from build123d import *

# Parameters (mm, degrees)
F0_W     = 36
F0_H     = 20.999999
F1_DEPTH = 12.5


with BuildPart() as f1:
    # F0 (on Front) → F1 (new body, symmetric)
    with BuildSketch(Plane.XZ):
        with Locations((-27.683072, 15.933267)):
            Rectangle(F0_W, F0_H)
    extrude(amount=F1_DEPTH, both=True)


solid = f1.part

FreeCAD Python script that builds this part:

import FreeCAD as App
import Part
import Sketcher


def add_polygon(sketch, points):
    """Adds a closed chain of lines whose ends are joined by coincident constraints."""
    first, n = sketch.GeometryCount, len(points)
    for a, b in zip(points, points[1:] + points[:1]):
        sketch.addGeometry(Part.LineSegment(App.Vector(*a, 0), App.Vector(*b, 0)), False)
    for i in range(n):
        sketch.addConstraint(Sketcher.Constraint("Coincident", first + i, 2, first + (i + 1) % n, 1))

doc = App.newDocument("Part")
body = doc.addObject("PartDesign::Body", "Body")

# Sketch on XZ plane
sketch1 = body.newObject("Sketcher::SketchObject", "Sketch")
sketch1.AttachmentSupport = (doc.getObject("XZ_Plane"), [""])
sketch1.MapMode = "FlatFace"
add_polygon(sketch1, [(-46, 26), (-46, 5), (-10, 5), (-10, 26)])  # lines 0-3
sketch1.addConstraint(Sketcher.Constraint("Vertical", 0))
sketch1.addConstraint(Sketcher.Constraint("Horizontal", 1))
sketch1.addConstraint(Sketcher.Constraint("Vertical", 2))
sketch1.addConstraint(Sketcher.Constraint("Horizontal", 3))
sketch1.addConstraint(Sketcher.Constraint("DistanceX", 1, 1, 1, 2, 36.0))
sketch1.addConstraint(Sketcher.Constraint("DistanceY", 0, 2, 0, 1, 20.999999))
sketch1.addConstraint(Sketcher.Constraint("DistanceX", 1, 2, -1, 1, 9.683072))
sketch1.addConstraint(Sketcher.Constraint("DistanceY", -1, 1, 0, 2, 5.433268))
pad1 = body.newObject("PartDesign::Pad", "Pad")
pad1.Profile = sketch1
pad1.Length = 25
pad1.Midplane = True

doc.recompute()
